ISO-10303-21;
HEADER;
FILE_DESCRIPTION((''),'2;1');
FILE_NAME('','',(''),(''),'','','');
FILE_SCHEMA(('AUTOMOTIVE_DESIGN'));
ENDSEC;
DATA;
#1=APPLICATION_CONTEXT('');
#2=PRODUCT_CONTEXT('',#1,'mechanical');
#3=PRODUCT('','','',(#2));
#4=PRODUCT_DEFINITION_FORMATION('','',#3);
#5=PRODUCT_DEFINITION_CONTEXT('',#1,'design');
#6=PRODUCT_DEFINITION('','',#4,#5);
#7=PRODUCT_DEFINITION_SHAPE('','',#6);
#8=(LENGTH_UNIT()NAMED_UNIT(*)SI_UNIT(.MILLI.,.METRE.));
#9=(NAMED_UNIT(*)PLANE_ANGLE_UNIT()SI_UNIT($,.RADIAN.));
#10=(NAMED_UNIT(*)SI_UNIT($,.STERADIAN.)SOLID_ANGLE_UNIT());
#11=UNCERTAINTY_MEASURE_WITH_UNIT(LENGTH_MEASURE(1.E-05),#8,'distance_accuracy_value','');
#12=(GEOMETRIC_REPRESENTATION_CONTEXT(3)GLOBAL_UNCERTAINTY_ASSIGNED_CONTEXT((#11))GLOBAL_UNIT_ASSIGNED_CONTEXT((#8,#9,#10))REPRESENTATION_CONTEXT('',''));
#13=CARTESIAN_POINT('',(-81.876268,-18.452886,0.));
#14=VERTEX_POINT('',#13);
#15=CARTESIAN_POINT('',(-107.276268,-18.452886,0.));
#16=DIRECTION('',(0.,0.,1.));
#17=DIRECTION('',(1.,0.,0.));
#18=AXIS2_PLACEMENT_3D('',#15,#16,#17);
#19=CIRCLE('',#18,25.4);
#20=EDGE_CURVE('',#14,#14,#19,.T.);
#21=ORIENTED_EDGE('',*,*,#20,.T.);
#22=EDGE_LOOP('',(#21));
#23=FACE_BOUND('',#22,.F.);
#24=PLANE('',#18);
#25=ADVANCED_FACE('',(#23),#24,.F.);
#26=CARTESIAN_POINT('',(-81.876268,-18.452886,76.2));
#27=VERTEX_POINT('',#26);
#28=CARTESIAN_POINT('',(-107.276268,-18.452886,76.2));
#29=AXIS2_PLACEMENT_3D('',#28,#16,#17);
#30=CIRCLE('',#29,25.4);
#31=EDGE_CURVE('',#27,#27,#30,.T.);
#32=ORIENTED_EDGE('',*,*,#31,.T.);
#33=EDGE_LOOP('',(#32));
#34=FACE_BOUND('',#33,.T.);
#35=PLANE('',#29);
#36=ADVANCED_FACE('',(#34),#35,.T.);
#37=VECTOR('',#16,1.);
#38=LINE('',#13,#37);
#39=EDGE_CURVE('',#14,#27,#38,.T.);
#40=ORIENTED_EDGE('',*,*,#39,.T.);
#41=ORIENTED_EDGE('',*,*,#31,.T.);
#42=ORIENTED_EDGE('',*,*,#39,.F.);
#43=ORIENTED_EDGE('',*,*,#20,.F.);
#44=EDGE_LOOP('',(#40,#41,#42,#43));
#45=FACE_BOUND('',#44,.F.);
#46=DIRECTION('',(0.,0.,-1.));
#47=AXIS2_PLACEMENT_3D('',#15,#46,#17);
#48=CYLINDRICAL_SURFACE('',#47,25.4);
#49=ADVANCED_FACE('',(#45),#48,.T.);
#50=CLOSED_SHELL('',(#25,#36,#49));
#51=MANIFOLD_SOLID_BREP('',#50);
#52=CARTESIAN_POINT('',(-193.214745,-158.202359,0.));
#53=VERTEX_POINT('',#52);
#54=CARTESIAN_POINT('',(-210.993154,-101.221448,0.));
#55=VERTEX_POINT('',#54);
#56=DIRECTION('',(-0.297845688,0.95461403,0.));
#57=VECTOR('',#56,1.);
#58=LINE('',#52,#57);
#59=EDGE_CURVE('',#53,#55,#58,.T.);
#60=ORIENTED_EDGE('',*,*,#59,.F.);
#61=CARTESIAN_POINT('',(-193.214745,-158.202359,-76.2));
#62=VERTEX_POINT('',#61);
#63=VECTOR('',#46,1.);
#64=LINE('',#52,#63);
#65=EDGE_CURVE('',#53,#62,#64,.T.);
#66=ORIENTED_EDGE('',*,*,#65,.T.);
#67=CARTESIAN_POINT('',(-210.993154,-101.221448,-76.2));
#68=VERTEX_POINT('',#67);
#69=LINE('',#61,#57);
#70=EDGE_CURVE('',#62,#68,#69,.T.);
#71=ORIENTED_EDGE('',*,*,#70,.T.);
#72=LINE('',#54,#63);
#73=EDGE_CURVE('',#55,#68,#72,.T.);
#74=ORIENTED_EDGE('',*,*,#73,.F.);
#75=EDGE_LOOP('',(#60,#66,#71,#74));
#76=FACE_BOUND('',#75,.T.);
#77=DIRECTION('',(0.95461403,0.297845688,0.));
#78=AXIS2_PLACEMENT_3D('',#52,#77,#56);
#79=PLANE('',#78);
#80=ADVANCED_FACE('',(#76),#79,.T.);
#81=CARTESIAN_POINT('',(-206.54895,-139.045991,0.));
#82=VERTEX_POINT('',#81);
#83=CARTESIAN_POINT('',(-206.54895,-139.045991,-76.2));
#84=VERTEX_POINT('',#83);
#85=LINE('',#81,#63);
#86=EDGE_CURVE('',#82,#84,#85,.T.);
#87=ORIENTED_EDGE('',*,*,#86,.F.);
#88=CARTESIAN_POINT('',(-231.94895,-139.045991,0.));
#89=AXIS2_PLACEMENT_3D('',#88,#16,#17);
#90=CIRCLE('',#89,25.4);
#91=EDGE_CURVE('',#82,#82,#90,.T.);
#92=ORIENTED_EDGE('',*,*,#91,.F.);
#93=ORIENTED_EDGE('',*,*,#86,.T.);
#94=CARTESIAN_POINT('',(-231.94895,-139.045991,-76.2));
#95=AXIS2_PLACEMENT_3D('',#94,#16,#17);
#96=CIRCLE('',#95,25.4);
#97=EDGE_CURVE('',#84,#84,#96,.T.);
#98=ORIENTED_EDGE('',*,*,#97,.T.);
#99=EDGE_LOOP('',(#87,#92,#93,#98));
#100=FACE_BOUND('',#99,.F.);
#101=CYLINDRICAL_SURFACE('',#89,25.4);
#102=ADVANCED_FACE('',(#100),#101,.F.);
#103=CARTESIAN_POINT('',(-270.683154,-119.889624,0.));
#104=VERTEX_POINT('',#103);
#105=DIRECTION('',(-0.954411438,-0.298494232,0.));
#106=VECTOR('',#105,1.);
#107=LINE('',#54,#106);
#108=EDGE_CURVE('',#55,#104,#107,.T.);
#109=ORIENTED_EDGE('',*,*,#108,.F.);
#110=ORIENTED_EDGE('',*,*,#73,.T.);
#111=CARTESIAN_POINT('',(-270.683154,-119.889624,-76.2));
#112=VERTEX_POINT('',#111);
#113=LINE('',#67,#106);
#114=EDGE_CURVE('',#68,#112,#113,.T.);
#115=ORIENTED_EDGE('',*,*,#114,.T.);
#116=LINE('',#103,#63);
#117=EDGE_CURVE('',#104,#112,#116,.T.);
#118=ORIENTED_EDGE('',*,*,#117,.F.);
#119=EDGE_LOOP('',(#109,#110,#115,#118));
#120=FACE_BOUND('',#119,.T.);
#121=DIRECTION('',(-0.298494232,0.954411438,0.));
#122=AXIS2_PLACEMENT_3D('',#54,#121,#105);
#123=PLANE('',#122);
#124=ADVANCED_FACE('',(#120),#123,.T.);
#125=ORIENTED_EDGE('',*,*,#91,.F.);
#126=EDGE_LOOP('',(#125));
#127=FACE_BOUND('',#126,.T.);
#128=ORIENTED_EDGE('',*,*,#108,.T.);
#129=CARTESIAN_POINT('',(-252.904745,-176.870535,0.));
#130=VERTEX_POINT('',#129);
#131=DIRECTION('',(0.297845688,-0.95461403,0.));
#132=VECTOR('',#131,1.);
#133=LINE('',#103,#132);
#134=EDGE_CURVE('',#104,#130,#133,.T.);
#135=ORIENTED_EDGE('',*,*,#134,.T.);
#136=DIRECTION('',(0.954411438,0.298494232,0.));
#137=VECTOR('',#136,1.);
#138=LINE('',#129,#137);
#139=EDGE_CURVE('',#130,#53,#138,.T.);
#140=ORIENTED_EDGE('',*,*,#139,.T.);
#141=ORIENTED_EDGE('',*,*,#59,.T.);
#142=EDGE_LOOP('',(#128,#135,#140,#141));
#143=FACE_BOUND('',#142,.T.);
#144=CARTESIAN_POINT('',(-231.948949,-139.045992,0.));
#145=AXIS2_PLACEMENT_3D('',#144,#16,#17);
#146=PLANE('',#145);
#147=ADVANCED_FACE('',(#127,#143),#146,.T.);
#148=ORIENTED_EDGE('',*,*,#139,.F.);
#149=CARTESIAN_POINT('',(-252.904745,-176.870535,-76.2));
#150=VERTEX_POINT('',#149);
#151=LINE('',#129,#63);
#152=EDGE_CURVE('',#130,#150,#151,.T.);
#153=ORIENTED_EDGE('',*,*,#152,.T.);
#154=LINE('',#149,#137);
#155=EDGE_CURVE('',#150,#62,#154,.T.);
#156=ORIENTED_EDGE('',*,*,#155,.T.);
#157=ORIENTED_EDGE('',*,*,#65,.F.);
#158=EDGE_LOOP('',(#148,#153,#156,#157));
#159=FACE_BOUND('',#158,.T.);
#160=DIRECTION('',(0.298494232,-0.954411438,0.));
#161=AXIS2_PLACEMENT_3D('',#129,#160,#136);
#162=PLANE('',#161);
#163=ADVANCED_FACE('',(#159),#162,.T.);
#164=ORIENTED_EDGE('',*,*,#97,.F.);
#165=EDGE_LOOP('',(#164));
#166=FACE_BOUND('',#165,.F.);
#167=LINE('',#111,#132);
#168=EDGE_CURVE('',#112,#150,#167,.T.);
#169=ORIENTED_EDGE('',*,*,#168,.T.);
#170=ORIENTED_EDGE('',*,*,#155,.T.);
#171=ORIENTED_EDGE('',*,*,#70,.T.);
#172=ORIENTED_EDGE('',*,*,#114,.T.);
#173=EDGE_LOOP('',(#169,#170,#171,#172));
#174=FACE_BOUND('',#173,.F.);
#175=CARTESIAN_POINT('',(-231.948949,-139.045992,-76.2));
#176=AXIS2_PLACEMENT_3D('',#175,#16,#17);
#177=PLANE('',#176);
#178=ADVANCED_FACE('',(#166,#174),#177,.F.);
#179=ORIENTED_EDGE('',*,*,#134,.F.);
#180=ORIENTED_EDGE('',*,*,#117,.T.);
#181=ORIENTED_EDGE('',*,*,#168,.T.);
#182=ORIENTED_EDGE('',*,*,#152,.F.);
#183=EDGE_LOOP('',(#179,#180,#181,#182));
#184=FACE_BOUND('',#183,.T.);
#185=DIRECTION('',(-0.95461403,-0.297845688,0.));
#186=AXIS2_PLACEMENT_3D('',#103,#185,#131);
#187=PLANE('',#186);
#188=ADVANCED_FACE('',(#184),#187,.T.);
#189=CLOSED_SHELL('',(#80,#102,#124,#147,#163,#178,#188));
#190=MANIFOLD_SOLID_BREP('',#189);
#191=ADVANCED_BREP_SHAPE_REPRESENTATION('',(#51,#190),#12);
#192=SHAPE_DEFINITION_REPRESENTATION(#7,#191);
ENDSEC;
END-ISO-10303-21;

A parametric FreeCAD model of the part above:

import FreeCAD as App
import Part
import Sketcher
from FreeCAD import Vector
Q = App.Units.Quantity

doc = App.newDocument("Part")
params = doc.addObject("Spreadsheet::Sheet", "Params")
for row, (alias, value) in enumerate([
    ("sketch1_diameter", "2 in"),
    ("pad1_length", "3 in"),
    ("sketch2_diameter", "2 in"),
    ("sketch2_length", "2.35 in"),
    ("pad2_length", "3 in"),
], start=1):
    params.set(f"A{row}", alias)
    params.set(f"B{row}", "=" + value)
    params.setAlias(f"B{row}", alias)

body = doc.addObject("PartDesign::Body", "Body")

sketch1 = body.newObject("Sketcher::SketchObject", "Sketch")
sketch1.AttachmentSupport = (doc.getObject("XY_Plane"), [""])
sketch1.MapMode = "FlatFace"
sketch1.addGeometry(Part.Circle(Vector(-107, -18, 0), Vector(0, 0, 1), 25), False)
sketch1.addConstraint([
    Sketcher.Constraint("Diameter", 0, Q("2 in")),
    Sketcher.Constraint("DistanceX", 0, 3, -1, 1, Q("107.276268 mm")),
    Sketcher.Constraint("DistanceY", 0, 3, -1, 1, Q("18.452886 mm")),
])
sketch1.setExpression("Constraints[0]", "Params.sketch1_diameter")
pad1 = body.newObject("PartDesign::Pad", "Pad")
pad1.Profile = sketch1
pad1.setExpression("Length", "Params.pad1_length")
body2 = doc.addObject("PartDesign::Body", "Body001")

sketch2 = body2.newObject("Sketcher::SketchObject", "Sketch001")
sketch2.AttachmentSupport = (doc.getObject("XY_Plane001"), [""])
sketch2.MapMode = "FlatFace"
sketch2.addGeometry([
    Part.LineSegment(Vector(-211, -101, 0), Vector(-271, -120, 0)),
    Part.LineSegment(Vector(-271, -120, 0), Vector(-253, -177, 0)),
    Part.LineSegment(Vector(-253, -177, 0), Vector(-193, -158, 0)),
    Part.LineSegment(Vector(-193, -158, 0), Vector(-211, -101, 0)),
    Part.Circle(Vector(-232, -139, 0), Vector(0, 0, 1), 25),
], False)
sketch2.addConstraint([
    Sketcher.Constraint("Coincident", 0, 2, 1, 1),
    Sketcher.Constraint("Coincident", 1, 2, 2, 1),
    Sketcher.Constraint("Coincident", 2, 2, 3, 1),
    Sketcher.Constraint("Coincident", 3, 2, 0, 1),
    Sketcher.Constraint("Parallel", 0, 2),
    Sketcher.Constraint("Parallel", 1, 3),
    Sketcher.Constraint("Diameter", 4, Q("2 in")),
    Sketcher.Constraint("Distance", 1, Q("2.35 in")),
    Sketcher.Constraint("DistanceX", 1, 2, 2, 2, Q("2.35 in")),
    Sketcher.Constraint("Distance", 0, Q("62.541162 mm")),
    Sketcher.Constraint("DistanceX", 4, 3, -1, 1, Q("231.94895 mm")),
    Sketcher.Constraint("DistanceY", 4, 3, -1, 1, Q("139.045991 mm")),
    Sketcher.Constraint("DistanceY", 2, 2, -1, 1, Q("158.202359 mm")),
    Sketcher.Constraint("DistanceX", 0, 2, 1, 2, Q("17.778409 mm")),
    Sketcher.Constraint("DistanceX", 0, 2, -1, 1, Q("270.683154 mm")),
])
sketch2.setExpression("Constraints[6]", "Params.sketch2_diameter")
sketch2.setExpression("Constraints[7]", "Params.sketch2_length")
pad2 = body2.newObject("PartDesign::Pad", "Pad001")
pad2.Profile = sketch2
pad2.setExpression("Length", "Params.pad2_length")
pad2.Reversed = True

doc.recompute()
